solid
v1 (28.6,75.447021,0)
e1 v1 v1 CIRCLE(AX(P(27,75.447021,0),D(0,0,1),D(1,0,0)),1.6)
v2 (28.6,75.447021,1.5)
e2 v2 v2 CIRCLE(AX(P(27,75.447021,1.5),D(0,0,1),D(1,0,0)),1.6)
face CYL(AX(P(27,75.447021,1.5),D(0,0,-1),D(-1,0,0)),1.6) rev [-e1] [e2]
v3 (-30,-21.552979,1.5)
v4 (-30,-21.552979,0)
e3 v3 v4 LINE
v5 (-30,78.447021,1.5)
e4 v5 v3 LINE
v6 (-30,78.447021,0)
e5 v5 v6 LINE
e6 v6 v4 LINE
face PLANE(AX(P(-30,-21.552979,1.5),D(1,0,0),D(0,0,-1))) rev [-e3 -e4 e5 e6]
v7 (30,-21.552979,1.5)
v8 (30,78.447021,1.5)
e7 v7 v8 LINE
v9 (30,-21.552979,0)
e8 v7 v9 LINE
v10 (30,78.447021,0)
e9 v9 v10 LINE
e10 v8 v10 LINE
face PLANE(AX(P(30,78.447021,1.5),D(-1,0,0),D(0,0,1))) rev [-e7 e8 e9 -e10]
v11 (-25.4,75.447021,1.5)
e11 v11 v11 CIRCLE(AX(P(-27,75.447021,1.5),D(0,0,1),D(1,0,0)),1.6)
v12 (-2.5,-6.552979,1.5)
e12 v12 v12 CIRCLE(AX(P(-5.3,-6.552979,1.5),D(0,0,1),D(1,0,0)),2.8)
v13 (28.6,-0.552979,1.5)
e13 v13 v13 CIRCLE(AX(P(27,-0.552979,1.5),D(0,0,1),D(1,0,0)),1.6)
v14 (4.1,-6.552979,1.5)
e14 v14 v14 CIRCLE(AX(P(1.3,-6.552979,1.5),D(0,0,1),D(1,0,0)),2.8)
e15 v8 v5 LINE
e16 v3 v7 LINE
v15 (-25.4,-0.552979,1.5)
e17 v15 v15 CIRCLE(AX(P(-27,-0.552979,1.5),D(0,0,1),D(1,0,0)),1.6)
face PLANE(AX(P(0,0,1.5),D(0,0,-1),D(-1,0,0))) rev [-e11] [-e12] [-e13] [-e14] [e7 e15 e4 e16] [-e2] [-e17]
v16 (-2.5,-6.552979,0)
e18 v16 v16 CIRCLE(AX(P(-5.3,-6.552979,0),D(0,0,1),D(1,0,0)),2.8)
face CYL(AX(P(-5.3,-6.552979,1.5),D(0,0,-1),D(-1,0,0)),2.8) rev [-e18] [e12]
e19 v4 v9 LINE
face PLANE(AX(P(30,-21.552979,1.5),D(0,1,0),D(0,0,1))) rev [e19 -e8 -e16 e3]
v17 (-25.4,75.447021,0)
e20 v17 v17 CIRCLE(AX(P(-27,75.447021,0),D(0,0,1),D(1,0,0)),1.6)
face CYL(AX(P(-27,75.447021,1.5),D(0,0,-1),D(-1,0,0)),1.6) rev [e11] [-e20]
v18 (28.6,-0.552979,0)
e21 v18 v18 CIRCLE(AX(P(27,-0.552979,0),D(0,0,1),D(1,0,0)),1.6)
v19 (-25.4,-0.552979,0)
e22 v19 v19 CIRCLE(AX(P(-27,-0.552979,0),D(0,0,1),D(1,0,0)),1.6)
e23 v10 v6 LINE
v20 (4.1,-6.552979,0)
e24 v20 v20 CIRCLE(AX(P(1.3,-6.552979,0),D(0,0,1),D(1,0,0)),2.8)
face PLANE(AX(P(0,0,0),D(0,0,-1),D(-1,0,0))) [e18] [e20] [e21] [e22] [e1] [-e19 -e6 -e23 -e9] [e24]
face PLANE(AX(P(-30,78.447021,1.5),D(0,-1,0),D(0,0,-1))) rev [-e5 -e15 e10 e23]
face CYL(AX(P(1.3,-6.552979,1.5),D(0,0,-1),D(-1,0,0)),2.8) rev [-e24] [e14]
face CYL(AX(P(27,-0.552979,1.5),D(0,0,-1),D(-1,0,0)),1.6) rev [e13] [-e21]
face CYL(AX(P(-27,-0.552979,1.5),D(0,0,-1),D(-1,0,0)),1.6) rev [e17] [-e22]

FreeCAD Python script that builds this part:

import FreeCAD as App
import Part
import Sketcher
from FreeCAD import Vector
Q = App.Units.Quantity

doc = App.newDocument("Part")
body = doc.addObject("PartDesign::Body", "Body")

sketch1 = body.newObject("Sketcher::SketchObject", "Sketch")
sketch1.AttachmentSupport = (doc.getObject("XY_Plane"), [""])
sketch1.MapMode = "FlatFace"
sketch1.addGeometry([
    Part.LineSegment(Vector(-30, 78.4, 0), Vector(-30, -21.6, 0)),
    Part.LineSegment(Vector(-30, -21.6, 0), Vector(30, -21.6, 0)),
    Part.LineSegment(Vector(30, -21.6, 0), Vector(30, 78.4, 0)),
    Part.LineSegment(Vector(30, 78.4, 0), Vector(-30, 78.4, 0)),
    Part.Circle(Vector(-27, -0.6, 0), Vector(0, 0, 1), 1.6),
    Part.Circle(Vector(-5.3, -6.6, 0), Vector(0, 0, 1), 2.8),
    Part.Circle(Vector(1.3, -6.6, 0), Vector(0, 0, 1), 2.8),
    Part.Circle(Vector(27, -0.6, 0), Vector(0, 0, 1), 1.6),
    Part.Circle(Vector(-27, 75.4, 0), Vector(0, 0, 1), 1.6),
    Part.Circle(Vector(27, 75.4, 0), Vector(0, 0, 1), 1.6),
], False)
sketch1.addConstraint([
    Sketcher.Constraint("Coincident", 0, 2, 1, 1),
    Sketcher.Constraint("Coincident", 1, 2, 2, 1),
    Sketcher.Constraint("Coincident", 2, 2, 3, 1),
    Sketcher.Constraint("Coincident", 3, 2, 0, 1),
    Sketcher.Constraint("Vertical", 0),
    Sketcher.Constraint("Horizontal", 1),
    Sketcher.Constraint("Vertical", 2),
    Sketcher.Constraint("Horizontal", 3),
    Sketcher.Constraint("Equal", 5, 6),
    Sketcher.Constraint("Equal", 4, 7),
    Sketcher.Constraint("Equal", 7, 8),
    Sketcher.Constraint("Equal", 8, 9),
    Sketcher.Constraint("Symmetric", 4, 3, 7, 3, -2),
    Sketcher.Constraint("Symmetric", 8, 3, 9, 3, -2),
    Sketcher.Constraint("Horizontal", 5, 3, 6, 3),
    Sketcher.Constraint("Vertical", 4, 3, 8, 3),
    Sketcher.Constraint("Diameter", 4, Q("3.2 mm")),
    Sketcher.Constraint("Diameter", 5, Q("5.6 mm")),
    Sketcher.Constraint("DistanceX", 1, 1, 1, 2, Q("60 mm")),
    Sketcher.Constraint("DistanceY", 0, 2, 0, 1, Q("100 mm")),
    Sketcher.Constraint("DistanceX", 4, 3, -1, 1, Q("27 mm")),
    Sketcher.Constraint("DistanceX", 0, 2, -1, 1, Q("30 mm")),
    Sketcher.Constraint("DistanceY", 5, 3, 4, 3, Q("6 mm")),
    Sketcher.Constraint("DistanceY", 4, 3, 8, 3, Q("76 mm")),
    Sketcher.Constraint("DistanceY", 0, 2, 4, 3, Q("21 mm")),
    Sketcher.Constraint("DistanceX", 5, 3, -1, 1, Q("5.3 mm")),
    Sketcher.Constraint("DistanceX", -1, 1, 6, 3, Q("1.3 mm")),
    Sketcher.Constraint("DistanceY", 4, 3, -1, 1, Q("0.552979 mm")),
])
pad1 = body.newObject("PartDesign::Pad", "Pad")
pad1.Profile = sketch1
pad1.Length = 1.5

doc.recompute()
